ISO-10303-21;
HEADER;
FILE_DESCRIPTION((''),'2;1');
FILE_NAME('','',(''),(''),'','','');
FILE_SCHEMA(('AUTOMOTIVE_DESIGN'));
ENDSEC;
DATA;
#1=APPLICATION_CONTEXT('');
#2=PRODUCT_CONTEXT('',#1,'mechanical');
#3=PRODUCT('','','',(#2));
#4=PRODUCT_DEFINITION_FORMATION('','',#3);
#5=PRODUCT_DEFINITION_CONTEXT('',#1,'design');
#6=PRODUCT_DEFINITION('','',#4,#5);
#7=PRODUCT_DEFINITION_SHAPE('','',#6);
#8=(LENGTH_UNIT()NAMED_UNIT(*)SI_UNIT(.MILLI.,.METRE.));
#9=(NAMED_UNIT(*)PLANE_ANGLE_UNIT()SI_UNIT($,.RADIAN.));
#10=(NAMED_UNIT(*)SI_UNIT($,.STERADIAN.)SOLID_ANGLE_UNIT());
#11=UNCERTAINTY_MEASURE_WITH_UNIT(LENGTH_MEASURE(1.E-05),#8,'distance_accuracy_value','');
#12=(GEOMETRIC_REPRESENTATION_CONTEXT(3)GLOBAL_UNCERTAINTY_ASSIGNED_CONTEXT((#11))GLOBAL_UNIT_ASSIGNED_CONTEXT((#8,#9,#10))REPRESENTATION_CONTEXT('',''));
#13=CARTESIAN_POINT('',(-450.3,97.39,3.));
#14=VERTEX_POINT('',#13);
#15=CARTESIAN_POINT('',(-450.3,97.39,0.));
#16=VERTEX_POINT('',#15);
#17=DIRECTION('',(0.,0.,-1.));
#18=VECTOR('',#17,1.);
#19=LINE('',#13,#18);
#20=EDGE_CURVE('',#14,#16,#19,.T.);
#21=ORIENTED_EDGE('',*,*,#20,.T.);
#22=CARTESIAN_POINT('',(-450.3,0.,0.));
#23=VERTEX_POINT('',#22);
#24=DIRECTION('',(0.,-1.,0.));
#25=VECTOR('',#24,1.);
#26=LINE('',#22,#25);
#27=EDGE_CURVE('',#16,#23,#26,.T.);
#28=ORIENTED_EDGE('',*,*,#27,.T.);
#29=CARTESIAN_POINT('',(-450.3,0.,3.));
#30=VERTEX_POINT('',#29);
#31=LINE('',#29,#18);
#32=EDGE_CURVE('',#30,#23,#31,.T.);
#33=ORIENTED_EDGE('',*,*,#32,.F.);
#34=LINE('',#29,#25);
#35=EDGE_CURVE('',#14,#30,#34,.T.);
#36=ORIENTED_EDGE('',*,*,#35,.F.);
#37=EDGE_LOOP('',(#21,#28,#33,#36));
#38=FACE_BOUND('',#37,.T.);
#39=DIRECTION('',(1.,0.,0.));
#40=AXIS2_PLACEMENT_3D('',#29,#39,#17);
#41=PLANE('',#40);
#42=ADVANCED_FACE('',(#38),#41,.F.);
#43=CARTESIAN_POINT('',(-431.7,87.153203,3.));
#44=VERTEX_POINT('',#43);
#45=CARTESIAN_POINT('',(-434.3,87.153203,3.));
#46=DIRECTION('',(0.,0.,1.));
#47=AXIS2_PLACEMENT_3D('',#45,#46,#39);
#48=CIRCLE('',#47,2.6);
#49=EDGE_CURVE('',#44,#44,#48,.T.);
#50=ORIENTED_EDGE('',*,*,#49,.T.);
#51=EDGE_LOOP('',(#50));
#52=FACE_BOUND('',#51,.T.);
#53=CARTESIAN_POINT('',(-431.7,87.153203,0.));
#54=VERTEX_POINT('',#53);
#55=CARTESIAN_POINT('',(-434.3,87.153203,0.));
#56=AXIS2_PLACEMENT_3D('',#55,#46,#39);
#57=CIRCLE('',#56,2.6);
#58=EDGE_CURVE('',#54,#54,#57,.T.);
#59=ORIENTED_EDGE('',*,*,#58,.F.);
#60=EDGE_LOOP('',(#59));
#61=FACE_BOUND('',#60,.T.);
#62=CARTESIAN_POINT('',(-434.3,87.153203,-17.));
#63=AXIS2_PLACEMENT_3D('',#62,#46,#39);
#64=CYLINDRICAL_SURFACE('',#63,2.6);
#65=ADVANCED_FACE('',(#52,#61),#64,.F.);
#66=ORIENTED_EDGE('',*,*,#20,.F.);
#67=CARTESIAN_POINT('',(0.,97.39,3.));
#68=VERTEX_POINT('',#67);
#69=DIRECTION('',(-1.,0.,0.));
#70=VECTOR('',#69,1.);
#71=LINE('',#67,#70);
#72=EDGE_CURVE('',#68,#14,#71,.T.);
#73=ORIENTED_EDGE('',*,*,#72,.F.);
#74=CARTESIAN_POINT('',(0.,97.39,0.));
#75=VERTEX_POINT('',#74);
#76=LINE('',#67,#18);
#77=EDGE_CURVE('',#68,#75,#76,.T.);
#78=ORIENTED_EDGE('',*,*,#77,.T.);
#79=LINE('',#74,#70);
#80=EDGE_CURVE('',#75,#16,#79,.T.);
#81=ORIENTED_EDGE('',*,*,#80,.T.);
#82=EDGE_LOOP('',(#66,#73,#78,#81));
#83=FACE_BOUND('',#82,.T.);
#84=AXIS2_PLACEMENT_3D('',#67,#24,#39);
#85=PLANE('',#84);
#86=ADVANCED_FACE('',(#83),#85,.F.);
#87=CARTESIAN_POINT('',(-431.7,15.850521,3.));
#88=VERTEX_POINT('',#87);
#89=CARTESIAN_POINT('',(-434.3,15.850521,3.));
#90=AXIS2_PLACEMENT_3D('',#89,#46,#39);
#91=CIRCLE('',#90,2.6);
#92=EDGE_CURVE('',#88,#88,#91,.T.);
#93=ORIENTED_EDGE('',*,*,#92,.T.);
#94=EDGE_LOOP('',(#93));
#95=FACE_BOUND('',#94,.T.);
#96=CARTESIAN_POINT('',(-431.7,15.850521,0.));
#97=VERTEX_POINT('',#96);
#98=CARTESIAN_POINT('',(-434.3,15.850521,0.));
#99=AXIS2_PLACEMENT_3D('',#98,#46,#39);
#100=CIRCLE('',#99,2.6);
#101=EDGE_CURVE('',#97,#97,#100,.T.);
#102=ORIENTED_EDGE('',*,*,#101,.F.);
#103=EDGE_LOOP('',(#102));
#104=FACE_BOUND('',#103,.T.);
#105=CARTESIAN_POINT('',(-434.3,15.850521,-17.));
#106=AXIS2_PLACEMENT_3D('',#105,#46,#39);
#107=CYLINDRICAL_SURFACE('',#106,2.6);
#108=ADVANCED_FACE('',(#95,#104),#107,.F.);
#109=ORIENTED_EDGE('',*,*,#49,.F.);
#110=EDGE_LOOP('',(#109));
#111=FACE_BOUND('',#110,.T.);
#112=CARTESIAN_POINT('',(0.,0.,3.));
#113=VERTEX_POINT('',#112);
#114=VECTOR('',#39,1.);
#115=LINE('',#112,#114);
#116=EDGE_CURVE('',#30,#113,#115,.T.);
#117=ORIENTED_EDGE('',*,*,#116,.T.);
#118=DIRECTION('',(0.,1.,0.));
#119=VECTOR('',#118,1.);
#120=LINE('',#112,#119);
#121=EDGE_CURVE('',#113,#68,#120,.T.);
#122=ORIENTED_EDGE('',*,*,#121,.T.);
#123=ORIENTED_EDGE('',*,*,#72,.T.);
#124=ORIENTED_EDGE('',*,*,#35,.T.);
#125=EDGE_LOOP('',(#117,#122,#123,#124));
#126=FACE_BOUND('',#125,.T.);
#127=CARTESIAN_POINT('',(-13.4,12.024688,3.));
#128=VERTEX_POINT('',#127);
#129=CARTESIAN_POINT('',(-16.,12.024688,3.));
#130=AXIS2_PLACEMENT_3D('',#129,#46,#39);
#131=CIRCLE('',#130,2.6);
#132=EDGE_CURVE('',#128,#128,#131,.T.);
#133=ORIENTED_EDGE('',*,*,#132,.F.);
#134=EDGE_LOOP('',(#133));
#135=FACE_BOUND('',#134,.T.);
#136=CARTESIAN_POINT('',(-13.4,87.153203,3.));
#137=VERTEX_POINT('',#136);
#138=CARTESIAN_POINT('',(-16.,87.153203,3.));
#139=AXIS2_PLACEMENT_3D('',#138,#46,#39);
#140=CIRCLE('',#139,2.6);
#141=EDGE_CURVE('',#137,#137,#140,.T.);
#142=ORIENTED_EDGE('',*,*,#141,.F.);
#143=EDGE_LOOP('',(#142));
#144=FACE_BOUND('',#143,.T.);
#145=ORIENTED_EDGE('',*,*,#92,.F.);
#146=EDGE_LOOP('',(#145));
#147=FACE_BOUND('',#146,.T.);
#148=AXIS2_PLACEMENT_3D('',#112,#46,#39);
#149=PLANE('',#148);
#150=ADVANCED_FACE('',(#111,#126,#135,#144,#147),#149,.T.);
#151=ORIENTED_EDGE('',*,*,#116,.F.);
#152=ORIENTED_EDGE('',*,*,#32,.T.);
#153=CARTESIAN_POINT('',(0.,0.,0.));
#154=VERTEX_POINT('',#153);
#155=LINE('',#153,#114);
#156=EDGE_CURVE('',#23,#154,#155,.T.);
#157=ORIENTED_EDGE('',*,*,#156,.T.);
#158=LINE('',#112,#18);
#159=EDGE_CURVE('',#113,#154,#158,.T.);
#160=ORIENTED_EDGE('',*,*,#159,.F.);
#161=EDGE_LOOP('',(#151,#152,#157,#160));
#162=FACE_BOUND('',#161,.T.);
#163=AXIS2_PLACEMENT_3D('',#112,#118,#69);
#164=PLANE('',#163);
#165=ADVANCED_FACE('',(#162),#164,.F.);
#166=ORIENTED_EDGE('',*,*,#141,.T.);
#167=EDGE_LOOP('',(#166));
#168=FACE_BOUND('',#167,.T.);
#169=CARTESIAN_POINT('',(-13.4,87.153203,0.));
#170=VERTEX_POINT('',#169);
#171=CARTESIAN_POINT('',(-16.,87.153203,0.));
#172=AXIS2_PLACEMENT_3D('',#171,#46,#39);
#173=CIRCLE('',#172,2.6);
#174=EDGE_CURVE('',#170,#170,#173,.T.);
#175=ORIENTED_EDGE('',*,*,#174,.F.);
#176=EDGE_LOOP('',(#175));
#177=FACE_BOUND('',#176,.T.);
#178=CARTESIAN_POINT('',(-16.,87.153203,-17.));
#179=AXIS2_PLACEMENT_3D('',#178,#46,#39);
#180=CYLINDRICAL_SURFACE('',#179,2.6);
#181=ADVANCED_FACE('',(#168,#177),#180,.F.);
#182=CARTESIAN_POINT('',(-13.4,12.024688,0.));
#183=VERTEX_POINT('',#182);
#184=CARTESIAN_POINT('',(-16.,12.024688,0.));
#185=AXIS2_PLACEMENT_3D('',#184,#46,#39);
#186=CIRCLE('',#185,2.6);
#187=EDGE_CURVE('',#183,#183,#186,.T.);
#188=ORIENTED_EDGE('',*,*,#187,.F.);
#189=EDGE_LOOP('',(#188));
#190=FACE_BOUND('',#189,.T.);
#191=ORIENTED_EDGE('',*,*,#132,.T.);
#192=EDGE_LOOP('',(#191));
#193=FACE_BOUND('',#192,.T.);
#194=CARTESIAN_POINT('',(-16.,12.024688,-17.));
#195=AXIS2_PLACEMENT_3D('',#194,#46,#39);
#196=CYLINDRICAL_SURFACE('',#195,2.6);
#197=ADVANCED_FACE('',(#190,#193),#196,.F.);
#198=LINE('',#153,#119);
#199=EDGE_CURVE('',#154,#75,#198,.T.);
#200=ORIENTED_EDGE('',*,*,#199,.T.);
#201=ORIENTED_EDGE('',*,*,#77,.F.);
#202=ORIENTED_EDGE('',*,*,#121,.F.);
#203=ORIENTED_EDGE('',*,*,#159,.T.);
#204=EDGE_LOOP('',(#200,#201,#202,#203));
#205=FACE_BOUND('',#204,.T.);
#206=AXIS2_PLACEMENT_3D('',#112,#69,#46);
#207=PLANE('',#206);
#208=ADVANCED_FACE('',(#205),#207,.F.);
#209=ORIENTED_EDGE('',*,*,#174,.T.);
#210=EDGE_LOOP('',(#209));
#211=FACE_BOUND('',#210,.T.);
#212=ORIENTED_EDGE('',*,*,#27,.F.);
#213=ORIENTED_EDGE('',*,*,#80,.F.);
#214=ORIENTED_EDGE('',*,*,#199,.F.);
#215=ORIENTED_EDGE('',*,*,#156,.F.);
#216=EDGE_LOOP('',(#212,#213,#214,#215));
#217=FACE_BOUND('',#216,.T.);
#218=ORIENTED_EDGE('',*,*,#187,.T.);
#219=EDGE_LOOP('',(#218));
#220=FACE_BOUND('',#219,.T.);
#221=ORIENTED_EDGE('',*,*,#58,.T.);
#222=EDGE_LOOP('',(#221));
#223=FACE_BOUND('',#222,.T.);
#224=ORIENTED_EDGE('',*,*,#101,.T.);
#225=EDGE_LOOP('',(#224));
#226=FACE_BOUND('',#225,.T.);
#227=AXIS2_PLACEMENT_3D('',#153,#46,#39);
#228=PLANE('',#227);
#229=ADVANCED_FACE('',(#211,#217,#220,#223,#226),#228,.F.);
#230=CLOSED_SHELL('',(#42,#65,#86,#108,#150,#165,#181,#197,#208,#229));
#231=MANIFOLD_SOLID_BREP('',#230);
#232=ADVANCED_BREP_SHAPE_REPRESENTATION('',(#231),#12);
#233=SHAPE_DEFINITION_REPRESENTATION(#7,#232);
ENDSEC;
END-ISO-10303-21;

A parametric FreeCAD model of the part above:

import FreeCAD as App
import Part
import Sketcher

doc = App.newDocument("Part")
body = doc.addObject("PartDesign::Body", "Body")

# Sketch on XY plane
sketch1 = doc.addObject("Sketcher::SketchObject", "Sketch")
body.addObject(sketch1)
sketch1.AttachmentSupport = (doc.XY_Plane, [""])
sketch1.MapMode = "FlatFace"
sketch1.addGeometry(Part.LineSegment(App.Vector(-450, 97, 0), App.Vector(-450, 0, 0)), False)
sketch1.addGeometry(Part.LineSegment(App.Vector(-450, 0, 0), App.Vector(0, 0, 0)), False)
sketch1.addGeometry(Part.LineSegment(App.Vector(0, 0, 0), App.Vector(0, 97, 0)), False)
sketch1.addGeometry(Part.LineSegment(App.Vector(0, 97, 0), App.Vector(-450, 97, 0)), False)
sketch1.addConstraint(Sketcher.Constraint("Coincident", 0, 2, 1, 1))
sketch1.addConstraint(Sketcher.Constraint("Coincident", 1, 2, 2, 1))
sketch1.addConstraint(Sketcher.Constraint("Coincident", 2, 2, 3, 1))
sketch1.addConstraint(Sketcher.Constraint("Coincident", 3, 2, 0, 1))
sketch1.addConstraint(Sketcher.Constraint("Vertical", 0))
sketch1.addConstraint(Sketcher.Constraint("Horizontal", 1))
sketch1.addConstraint(Sketcher.Constraint("Vertical", 2))
sketch1.addConstraint(Sketcher.Constraint("Horizontal", 3))
sketch1.addConstraint(Sketcher.Constraint("Coincident", 1, 2, -1, 1))
sketch1.addConstraint(Sketcher.Constraint("DistanceX", 1, 1, 1, 2, 450.3))
sketch1.addConstraint(Sketcher.Constraint("DistanceY", 0, 2, 0, 1, 97.39))
pad1 = doc.addObject("PartDesign::Pad", "Pad")
body.addObject(pad1)
pad1.Profile = sketch1
pad1.Length = 3

# Sketch on XY plane
sketch2 = doc.addObject("Sketcher::SketchObject", "Sketch001")
body.addObject(sketch2)
sketch2.AttachmentSupport = (doc.XY_Plane, [""])
sketch2.MapMode = "FlatFace"
sketch2.AttachmentOffset = App.Placement(App.Vector(0, 0, 3), App.Rotation())
sketch2.addGeometry(Part.Circle(App.Vector(-16, 12, 0), App.Vector(0, 0, 1), 2.6), False)
sketch2.addGeometry(Part.Circle(App.Vector(-16, 87.2, 0), App.Vector(0, 0, 1), 2.6), False)
sketch2.addGeometry(Part.Circle(App.Vector(-434.3, 87.2, 0), App.Vector(0, 0, 1), 2.6), False)
sketch2.addGeometry(Part.Circle(App.Vector(-434.3, 15.9, 0), App.Vector(0, 0, 1), 2.6), False)
sketch2.addConstraint(Sketcher.Constraint("Equal", 0, 1))
sketch2.addConstraint(Sketcher.Constraint("Equal", 1, 2))
sketch2.addConstraint(Sketcher.Constraint("Equal", 2, 3))
sketch2.addConstraint(Sketcher.Constraint("Horizontal", 1, 3, 2, 3))
sketch2.addConstraint(Sketcher.Constraint("Vertical", 0, 3, 1, 3))
sketch2.addConstraint(Sketcher.Constraint("Vertical", 2, 3, 3, 3))
sketch2.addConstraint(Sketcher.Constraint("Diameter", 0, 5.2))
sketch2.addConstraint(Sketcher.Constraint("DistanceX", 0, 3, -1, 1, 16.0))
sketch2.addConstraint(Sketcher.Constraint("DistanceX", 2, 3, -1, 1, 434.3))
sketch2.addConstraint(Sketcher.Constraint("DistanceY", -1, 1, 0, 3, 12.024688))
sketch2.addConstraint(Sketcher.Constraint("DistanceY", -1, 1, 3, 3, 15.850521))
sketch2.addConstraint(Sketcher.Constraint("DistanceY", -1, 1, 1, 3, 87.153203))
pocket1 = doc.addObject("PartDesign::Pocket", "Pocket")
body.addObject(pocket1)
pocket1.Profile = sketch2
pocket1.Length = 20

doc.recompute()
